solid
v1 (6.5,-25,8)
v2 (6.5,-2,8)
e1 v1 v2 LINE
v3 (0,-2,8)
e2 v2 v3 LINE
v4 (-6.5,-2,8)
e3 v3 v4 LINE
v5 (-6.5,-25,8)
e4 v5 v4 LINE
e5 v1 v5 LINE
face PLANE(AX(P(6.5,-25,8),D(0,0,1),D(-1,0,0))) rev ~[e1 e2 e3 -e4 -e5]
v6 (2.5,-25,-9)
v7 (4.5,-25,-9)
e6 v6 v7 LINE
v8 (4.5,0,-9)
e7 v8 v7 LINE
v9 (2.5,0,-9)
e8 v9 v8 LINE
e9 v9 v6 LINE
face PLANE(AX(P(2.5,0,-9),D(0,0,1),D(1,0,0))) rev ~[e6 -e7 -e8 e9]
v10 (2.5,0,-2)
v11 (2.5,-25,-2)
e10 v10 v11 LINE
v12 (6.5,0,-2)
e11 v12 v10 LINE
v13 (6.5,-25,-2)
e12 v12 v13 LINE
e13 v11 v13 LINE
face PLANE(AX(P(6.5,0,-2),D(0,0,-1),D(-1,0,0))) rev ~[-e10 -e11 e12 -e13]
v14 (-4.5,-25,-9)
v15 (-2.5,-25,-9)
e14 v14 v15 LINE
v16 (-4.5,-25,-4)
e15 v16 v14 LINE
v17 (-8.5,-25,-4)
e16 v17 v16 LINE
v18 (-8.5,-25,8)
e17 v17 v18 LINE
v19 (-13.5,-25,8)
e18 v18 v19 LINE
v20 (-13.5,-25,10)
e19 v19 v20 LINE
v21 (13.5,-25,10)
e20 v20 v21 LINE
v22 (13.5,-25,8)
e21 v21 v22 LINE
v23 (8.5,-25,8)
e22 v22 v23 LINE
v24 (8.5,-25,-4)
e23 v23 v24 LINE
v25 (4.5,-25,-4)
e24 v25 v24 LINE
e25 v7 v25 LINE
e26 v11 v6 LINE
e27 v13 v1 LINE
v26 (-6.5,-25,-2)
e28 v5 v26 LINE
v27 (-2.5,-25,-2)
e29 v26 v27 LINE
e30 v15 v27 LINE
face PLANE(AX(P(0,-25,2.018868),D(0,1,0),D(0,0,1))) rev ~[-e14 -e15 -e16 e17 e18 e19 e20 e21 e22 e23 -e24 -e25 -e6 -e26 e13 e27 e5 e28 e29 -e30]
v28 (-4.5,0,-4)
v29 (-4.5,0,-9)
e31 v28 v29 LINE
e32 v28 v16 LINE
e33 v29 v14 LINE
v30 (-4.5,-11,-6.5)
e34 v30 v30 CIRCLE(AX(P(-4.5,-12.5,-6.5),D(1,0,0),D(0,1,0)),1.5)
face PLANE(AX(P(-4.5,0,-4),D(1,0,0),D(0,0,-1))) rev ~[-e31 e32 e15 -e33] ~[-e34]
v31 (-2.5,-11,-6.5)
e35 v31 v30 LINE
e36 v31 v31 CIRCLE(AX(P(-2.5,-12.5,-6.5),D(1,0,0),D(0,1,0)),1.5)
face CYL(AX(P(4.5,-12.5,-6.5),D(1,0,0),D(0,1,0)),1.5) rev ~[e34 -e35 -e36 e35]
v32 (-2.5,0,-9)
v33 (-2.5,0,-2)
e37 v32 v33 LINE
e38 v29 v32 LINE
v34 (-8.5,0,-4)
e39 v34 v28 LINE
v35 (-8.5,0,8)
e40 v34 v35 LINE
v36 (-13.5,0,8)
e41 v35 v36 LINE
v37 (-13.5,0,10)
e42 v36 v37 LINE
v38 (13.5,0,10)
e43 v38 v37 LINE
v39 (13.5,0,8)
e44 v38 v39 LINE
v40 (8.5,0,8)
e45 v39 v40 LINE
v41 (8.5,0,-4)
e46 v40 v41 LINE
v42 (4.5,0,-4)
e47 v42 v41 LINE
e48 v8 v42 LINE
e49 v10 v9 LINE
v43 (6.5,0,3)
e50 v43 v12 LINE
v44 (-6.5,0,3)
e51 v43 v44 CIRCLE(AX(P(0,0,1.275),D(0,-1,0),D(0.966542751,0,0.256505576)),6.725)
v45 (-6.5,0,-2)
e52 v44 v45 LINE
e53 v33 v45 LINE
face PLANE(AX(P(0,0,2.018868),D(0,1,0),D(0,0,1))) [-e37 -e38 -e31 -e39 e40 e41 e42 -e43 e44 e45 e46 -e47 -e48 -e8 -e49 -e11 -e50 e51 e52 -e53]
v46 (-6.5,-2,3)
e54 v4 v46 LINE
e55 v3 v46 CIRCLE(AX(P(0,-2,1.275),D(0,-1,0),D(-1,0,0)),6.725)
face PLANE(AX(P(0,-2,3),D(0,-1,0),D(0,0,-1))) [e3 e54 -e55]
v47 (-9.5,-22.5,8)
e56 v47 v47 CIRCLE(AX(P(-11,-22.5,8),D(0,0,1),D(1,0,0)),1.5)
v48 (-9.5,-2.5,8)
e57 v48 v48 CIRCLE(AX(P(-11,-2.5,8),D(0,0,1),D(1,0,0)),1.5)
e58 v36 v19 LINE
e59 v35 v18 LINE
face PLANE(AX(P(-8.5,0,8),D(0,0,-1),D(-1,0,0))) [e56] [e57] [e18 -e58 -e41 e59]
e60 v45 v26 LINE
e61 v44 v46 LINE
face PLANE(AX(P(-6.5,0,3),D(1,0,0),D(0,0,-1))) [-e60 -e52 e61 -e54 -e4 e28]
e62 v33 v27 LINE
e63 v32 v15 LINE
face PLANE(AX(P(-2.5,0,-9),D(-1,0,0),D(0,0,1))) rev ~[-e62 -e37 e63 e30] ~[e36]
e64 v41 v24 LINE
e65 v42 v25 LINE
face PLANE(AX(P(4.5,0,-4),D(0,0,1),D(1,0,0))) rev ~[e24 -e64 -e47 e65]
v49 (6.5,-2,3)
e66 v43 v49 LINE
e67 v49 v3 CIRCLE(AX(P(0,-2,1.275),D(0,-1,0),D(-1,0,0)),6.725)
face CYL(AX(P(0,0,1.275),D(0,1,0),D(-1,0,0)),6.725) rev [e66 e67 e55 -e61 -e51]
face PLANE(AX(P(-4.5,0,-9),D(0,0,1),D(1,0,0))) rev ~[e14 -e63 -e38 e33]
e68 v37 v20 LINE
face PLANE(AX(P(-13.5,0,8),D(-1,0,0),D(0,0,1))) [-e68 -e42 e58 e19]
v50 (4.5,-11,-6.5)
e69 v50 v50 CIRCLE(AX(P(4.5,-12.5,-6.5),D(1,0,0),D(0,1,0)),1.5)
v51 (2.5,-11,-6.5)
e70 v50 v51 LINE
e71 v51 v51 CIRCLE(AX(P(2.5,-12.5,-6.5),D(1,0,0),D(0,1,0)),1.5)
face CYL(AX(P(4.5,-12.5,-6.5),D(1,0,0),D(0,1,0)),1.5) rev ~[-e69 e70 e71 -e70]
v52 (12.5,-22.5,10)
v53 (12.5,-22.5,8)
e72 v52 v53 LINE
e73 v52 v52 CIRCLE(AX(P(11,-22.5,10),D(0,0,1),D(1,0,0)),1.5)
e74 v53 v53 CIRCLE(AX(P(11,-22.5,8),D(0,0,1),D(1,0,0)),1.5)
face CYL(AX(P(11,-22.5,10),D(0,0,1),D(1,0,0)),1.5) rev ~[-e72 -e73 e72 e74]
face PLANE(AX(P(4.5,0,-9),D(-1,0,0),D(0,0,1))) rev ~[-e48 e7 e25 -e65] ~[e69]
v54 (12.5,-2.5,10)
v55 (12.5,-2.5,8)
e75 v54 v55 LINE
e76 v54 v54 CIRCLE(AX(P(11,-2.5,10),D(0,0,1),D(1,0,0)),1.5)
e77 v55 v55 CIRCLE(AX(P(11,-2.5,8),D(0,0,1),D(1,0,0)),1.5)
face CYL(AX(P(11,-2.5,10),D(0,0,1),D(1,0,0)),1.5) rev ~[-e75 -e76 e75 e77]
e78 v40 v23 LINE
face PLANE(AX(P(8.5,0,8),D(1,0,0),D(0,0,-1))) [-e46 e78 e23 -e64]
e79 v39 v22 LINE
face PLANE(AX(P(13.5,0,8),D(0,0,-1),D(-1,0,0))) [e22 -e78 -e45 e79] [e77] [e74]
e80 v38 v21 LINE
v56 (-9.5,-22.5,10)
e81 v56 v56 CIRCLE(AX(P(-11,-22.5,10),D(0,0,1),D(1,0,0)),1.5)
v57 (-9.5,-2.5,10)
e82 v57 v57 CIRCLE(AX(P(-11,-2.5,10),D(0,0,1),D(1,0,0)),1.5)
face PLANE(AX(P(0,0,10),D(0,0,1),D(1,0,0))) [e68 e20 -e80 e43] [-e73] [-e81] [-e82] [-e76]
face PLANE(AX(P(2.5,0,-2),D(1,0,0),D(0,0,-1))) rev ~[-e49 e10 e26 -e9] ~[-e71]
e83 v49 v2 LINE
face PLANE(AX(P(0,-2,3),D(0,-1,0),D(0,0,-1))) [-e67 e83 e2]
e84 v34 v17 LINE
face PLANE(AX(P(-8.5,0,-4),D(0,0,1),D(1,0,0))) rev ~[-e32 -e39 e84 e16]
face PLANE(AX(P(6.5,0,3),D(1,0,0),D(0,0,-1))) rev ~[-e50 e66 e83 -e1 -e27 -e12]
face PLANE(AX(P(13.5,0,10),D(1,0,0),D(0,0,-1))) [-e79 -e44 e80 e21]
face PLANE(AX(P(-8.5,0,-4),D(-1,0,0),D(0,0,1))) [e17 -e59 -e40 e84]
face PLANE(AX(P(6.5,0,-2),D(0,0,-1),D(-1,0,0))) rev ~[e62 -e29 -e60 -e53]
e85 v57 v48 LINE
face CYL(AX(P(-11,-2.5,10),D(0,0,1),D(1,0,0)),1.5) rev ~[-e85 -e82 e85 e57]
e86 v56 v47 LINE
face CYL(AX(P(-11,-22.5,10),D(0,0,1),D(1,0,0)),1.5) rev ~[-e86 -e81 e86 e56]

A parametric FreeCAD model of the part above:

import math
import FreeCAD as App
import Part
import Sketcher
from FreeCAD import Vector
Q = App.Units.Quantity

doc = App.newDocument("Part")
body = doc.addObject("PartDesign::Body", "Body")

# Sketch on XZ plane
sketch1 = body.newObject("Sketcher::SketchObject", "Sketch")
sketch1.AttachmentSupport = (doc.getObject("XZ_Plane"), [""])
sketch1.MapMode = "FlatFace"
sketch1.addGeometry([
    Part.LineSegment(Vector(13.5, 10, 0), Vector(-13.5, 10, 0)),  # 0
    Part.LineSegment(Vector(-13.5, 10, 0), Vector(-13.5, 8, 0)),  # 1
    Part.LineSegment(Vector(-13.5, 8, 0), Vector(-8.5, 8, 0)),  # 2
    Part.LineSegment(Vector(-8.5, 8, 0), Vector(-8.5, -4, 0)),  # 3
    Part.LineSegment(Vector(-8.5, -4, 0), Vector(-4.5, -4, 0)),  # 4
    Part.LineSegment(Vector(-4.5, -4, 0), Vector(-4.5, -9, 0)),  # 5
    Part.LineSegment(Vector(-4.5, -9, 0), Vector(-2.5, -9, 0)),  # 6
    Part.LineSegment(Vector(-2.5, -9, 0), Vector(-2.5, -2, 0)),  # 7
    Part.LineSegment(Vector(-2.5, -2, 0), Vector(2.5, -2, 0)),  # 8
    Part.LineSegment(Vector(2.5, -2, 0), Vector(2.5, -9, 0)),  # 9
    Part.LineSegment(Vector(2.5, -9, 0), Vector(4.5, -9, 0)),  # 10
    Part.LineSegment(Vector(4.5, -9, 0), Vector(4.5, -4, 0)),  # 11
    Part.LineSegment(Vector(4.5, -4, 0), Vector(8.5, -4, 0)),  # 12
    Part.LineSegment(Vector(8.5, -4, 0), Vector(8.5, 8, 0)),  # 13
    Part.LineSegment(Vector(8.5, 8, 0), Vector(13.5, 8, 0)),  # 14
    Part.LineSegment(Vector(13.5, 8, 0), Vector(13.5, 10, 0)),  # 15
], False)
sketch1.addConstraint([
    Sketcher.Constraint("Coincident", 0, 2, 1, 1),
    Sketcher.Constraint("Coincident", 1, 2, 2, 1),
    Sketcher.Constraint("Coincident", 2, 2, 3, 1),
    Sketcher.Constraint("Coincident", 3, 2, 4, 1),
    Sketcher.Constraint("Coincident", 4, 2, 5, 1),
    Sketcher.Constraint("Coincident", 5, 2, 6, 1),
    Sketcher.Constraint("Coincident", 6, 2, 7, 1),
    Sketcher.Constraint("Coincident", 7, 2, 8, 1),
    Sketcher.Constraint("Coincident", 8, 2, 9, 1),
    Sketcher.Constraint("Coincident", 9, 2, 10, 1),
    Sketcher.Constraint("Coincident", 10, 2, 11, 1),
    Sketcher.Constraint("Coincident", 11, 2, 12, 1),
    Sketcher.Constraint("Coincident", 12, 2, 13, 1),
    Sketcher.Constraint("Coincident", 13, 2, 14, 1),
    Sketcher.Constraint("Coincident", 14, 2, 15, 1),
    Sketcher.Constraint("Coincident", 15, 2, 0, 1),
    Sketcher.Constraint("Horizontal", 0),
    Sketcher.Constraint("Vertical", 1),
    Sketcher.Constraint("Horizontal", 2),
    Sketcher.Constraint("Vertical", 3),
    Sketcher.Constraint("Horizontal", 4),
    Sketcher.Constraint("Vertical", 5),
    Sketcher.Constraint("Horizontal", 6),
    Sketcher.Constraint("Vertical", 7),
    Sketcher.Constraint("Horizontal", 8),
    Sketcher.Constraint("Vertical", 9),
    Sketcher.Constraint("Horizontal", 10),
    Sketcher.Constraint("Vertical", 11),
    Sketcher.Constraint("Horizontal", 12),
    Sketcher.Constraint("Vertical", 13),
    Sketcher.Constraint("Horizontal", 14),
    Sketcher.Constraint("Vertical", 15),
    Sketcher.Constraint("Symmetric", 6, 2, 9, 2, -2),
    Sketcher.Constraint("Symmetric", 4, 2, 11, 2, -2),
    Sketcher.Constraint("Symmetric", 2, 2, 13, 2, -2),
    Sketcher.Constraint("Equal", 2, 8),
    Sketcher.Constraint("Equal", 8, 14),
    Sketcher.Constraint("Equal", 10, 1),
    Sketcher.Constraint("Equal", 14, 5),
    Sketcher.Constraint("DistanceX", 0, 2, 0, 1, Q("27 mm")),
    Sketcher.Constraint("DistanceX", 2, 1, 2, 2, Q("5 mm")),
    Sketcher.Constraint("DistanceX", 4, 1, 4, 2, Q("4 mm")),
    Sketcher.Constraint("DistanceY", 3, 2, 3, 1, Q("12 mm")),
    Sketcher.Constraint("DistanceY", 7, 1, 7, 2, Q("7 mm")),
    Sketcher.Constraint("DistanceY", -1, 1, 0, 2, Q("10 mm")),
])
pad1 = body.newObject("PartDesign::Pad", "Pad")
pad1.Profile = sketch1
pad1.Length = 25

# Sketch on XZ plane
sketch2 = body.newObject("Sketcher::SketchObject", "Sketch001")
sketch2.AttachmentSupport = (doc.getObject("XZ_Plane"), [""])
sketch2.MapMode = "FlatFace"
sketch2.AttachmentOffset = App.Placement(Vector(0, 0, 25), App.Rotation())
sketch2.addGeometry([
    Part.LineSegment(Vector(6.5, 8, 0), Vector(-6.5, 8, 0)),
    Part.LineSegment(Vector(-6.5, 8, 0), Vector(-6.5, -2, 0)),
    Part.LineSegment(Vector(-6.5, -2, 0), Vector(6.5, -2, 0)),
    Part.LineSegment(Vector(6.5, -2, 0), Vector(6.5, 8, 0)),
], False)
sketch2.addConstraint([
    Sketcher.Constraint("Coincident", 0, 2, 1, 1),
    Sketcher.Constraint("Coincident", 1, 2, 2, 1),
    Sketcher.Constraint("Coincident", 2, 2, 3, 1),
    Sketcher.Constraint("Coincident", 3, 2, 0, 1),
    Sketcher.Constraint("Horizontal", 0),
    Sketcher.Constraint("Vertical", 1),
    Sketcher.Constraint("Horizontal", 2),
    Sketcher.Constraint("Vertical", 3),
    Sketcher.Constraint("DistanceX", 0, 2, 0, 1, Q("13 mm")),
    Sketcher.Constraint("DistanceY", 1, 2, 1, 1, Q("10 mm")),
    Sketcher.Constraint("DistanceY", -1, 1, 0, 2, Q("8 mm")),
    Sketcher.Constraint("DistanceX", 0, 2, -1, 1, Q("6.5 mm")),
])
pocket1 = body.newObject("PartDesign::Pocket", "Pocket")
pocket1.Profile = sketch2
pocket1.Length = 23

# Sketch on XZ plane
sketch3 = body.newObject("Sketcher::SketchObject", "Sketch002")
sketch3.AttachmentSupport = (doc.getObject("XZ_Plane"), [""])
sketch3.MapMode = "FlatFace"
sketch3.addGeometry([
    Part.LineSegment(Vector(6.5, 3, 0), Vector(6.5, -2, 0)),
    Part.LineSegment(Vector(6.5, -2, 0), Vector(-6.5, -2, 0)),
    Part.LineSegment(Vector(-6.5, -2, 0), Vector(-6.5, 3, 0)),
    Part.ArcOfCircle(Part.Circle(Vector(0, 1.275, 0), Vector(0, 0, 1), 6.725), math.radians(14.862816), math.radians(165.137184)),
], False)
sketch3.addConstraint([
    Sketcher.Constraint("Coincident", 0, 2, 1, 1),
    Sketcher.Constraint("Coincident", 1, 2, 2, 1),
    Sketcher.Constraint("Coincident", 2, 2, 3, 2),
    Sketcher.Constraint("Coincident", 3, 1, 0, 1),
    Sketcher.Constraint("Vertical", 0),
    Sketcher.Constraint("Horizontal", 1),
    Sketcher.Constraint("Vertical", 2),
    Sketcher.Constraint("Symmetric", 2, 2, 3, 1, -2),
    Sketcher.Constraint("DistanceX", 1, 2, 1, 1, Q("13 mm")),
    Sketcher.Constraint("DistanceY", 0, 2, 0, 1, Q("5 mm")),
    Sketcher.Constraint("DistanceY", 0, 2, -1, 1, Q("2 mm")),
    Sketcher.Constraint("Radius", 3, Q("6.725 mm")),
])
pocket2 = body.newObject("PartDesign::Pocket", "Pocket001")
pocket2.Profile = sketch3
pocket2.Length = 2
pocket2.Reversed = True

# Sketch on XY plane
sketch4 = body.newObject("Sketcher::SketchObject", "Sketch003")
sketch4.AttachmentSupport = (doc.getObject("XY_Plane"), [""])
sketch4.MapMode = "FlatFace"
sketch4.AttachmentOffset = App.Placement(Vector(0, 0, 10), App.Rotation())
sketch4.addGeometry([
    Part.Circle(Vector(-11, -2.5, 0), Vector(0, 0, 1), 1.5),
    Part.Circle(Vector(11, -2.5, 0), Vector(0, 0, 1), 1.5),
    Part.Circle(Vector(11, -22.5, 0), Vector(0, 0, 1), 1.5),
    Part.Circle(Vector(-11, -22.5, 0), Vector(0, 0, 1), 1.5),
], False)
sketch4.addConstraint([
    Sketcher.Constraint("Equal", 0, 1),
    Sketcher.Constraint("Equal", 1, 2),
    Sketcher.Constraint("Equal", 2, 3),
    Sketcher.Constraint("Symmetric", 0, 3, 1, 3, -2),
    Sketcher.Constraint("Symmetric", 2, 3, 3, 3, -2),
    Sketcher.Constraint("Vertical", 1, 3, 2, 3),
    Sketcher.Constraint("Diameter", 0, Q("3 mm")),
    Sketcher.Constraint("DistanceX", 0, 3, -1, 1, Q("11 mm")),
    Sketcher.Constraint("DistanceY", 2, 3, 1, 3, Q("20 mm")),
    Sketcher.Constraint("DistanceY", 0, 3, -1, 1, Q("2.5 mm")),
])
pocket3 = body.newObject("PartDesign::Pocket", "Pocket002")
pocket3.Profile = sketch4
pocket3.Length = 2

# Sketch on YZ plane
sketch5 = body.newObject("Sketcher::SketchObject", "Sketch004")
sketch5.AttachmentSupport = (doc.getObject("YZ_Plane"), [""])
sketch5.MapMode = "FlatFace"
sketch5.AttachmentOffset = App.Placement(Vector(0, 0, 4.5), App.Rotation())
sketch5.addGeometry(Part.Circle(Vector(-12.5, -6.5, 0), Vector(0, 0, 1), 1.5), False)
sketch5.addConstraint([
    Sketcher.Constraint("Diameter", 0, Q("3 mm")),
    Sketcher.Constraint("DistanceX", 0, 3, -1, 1, Q("12.5 mm")),
    Sketcher.Constraint("DistanceY", 0, 3, -1, 1, Q("6.5 mm")),
])
pocket4 = body.newObject("PartDesign::Pocket", "Pocket003")
pocket4.Profile = sketch5
pocket4.Length = 10.3838

doc.recompute()
